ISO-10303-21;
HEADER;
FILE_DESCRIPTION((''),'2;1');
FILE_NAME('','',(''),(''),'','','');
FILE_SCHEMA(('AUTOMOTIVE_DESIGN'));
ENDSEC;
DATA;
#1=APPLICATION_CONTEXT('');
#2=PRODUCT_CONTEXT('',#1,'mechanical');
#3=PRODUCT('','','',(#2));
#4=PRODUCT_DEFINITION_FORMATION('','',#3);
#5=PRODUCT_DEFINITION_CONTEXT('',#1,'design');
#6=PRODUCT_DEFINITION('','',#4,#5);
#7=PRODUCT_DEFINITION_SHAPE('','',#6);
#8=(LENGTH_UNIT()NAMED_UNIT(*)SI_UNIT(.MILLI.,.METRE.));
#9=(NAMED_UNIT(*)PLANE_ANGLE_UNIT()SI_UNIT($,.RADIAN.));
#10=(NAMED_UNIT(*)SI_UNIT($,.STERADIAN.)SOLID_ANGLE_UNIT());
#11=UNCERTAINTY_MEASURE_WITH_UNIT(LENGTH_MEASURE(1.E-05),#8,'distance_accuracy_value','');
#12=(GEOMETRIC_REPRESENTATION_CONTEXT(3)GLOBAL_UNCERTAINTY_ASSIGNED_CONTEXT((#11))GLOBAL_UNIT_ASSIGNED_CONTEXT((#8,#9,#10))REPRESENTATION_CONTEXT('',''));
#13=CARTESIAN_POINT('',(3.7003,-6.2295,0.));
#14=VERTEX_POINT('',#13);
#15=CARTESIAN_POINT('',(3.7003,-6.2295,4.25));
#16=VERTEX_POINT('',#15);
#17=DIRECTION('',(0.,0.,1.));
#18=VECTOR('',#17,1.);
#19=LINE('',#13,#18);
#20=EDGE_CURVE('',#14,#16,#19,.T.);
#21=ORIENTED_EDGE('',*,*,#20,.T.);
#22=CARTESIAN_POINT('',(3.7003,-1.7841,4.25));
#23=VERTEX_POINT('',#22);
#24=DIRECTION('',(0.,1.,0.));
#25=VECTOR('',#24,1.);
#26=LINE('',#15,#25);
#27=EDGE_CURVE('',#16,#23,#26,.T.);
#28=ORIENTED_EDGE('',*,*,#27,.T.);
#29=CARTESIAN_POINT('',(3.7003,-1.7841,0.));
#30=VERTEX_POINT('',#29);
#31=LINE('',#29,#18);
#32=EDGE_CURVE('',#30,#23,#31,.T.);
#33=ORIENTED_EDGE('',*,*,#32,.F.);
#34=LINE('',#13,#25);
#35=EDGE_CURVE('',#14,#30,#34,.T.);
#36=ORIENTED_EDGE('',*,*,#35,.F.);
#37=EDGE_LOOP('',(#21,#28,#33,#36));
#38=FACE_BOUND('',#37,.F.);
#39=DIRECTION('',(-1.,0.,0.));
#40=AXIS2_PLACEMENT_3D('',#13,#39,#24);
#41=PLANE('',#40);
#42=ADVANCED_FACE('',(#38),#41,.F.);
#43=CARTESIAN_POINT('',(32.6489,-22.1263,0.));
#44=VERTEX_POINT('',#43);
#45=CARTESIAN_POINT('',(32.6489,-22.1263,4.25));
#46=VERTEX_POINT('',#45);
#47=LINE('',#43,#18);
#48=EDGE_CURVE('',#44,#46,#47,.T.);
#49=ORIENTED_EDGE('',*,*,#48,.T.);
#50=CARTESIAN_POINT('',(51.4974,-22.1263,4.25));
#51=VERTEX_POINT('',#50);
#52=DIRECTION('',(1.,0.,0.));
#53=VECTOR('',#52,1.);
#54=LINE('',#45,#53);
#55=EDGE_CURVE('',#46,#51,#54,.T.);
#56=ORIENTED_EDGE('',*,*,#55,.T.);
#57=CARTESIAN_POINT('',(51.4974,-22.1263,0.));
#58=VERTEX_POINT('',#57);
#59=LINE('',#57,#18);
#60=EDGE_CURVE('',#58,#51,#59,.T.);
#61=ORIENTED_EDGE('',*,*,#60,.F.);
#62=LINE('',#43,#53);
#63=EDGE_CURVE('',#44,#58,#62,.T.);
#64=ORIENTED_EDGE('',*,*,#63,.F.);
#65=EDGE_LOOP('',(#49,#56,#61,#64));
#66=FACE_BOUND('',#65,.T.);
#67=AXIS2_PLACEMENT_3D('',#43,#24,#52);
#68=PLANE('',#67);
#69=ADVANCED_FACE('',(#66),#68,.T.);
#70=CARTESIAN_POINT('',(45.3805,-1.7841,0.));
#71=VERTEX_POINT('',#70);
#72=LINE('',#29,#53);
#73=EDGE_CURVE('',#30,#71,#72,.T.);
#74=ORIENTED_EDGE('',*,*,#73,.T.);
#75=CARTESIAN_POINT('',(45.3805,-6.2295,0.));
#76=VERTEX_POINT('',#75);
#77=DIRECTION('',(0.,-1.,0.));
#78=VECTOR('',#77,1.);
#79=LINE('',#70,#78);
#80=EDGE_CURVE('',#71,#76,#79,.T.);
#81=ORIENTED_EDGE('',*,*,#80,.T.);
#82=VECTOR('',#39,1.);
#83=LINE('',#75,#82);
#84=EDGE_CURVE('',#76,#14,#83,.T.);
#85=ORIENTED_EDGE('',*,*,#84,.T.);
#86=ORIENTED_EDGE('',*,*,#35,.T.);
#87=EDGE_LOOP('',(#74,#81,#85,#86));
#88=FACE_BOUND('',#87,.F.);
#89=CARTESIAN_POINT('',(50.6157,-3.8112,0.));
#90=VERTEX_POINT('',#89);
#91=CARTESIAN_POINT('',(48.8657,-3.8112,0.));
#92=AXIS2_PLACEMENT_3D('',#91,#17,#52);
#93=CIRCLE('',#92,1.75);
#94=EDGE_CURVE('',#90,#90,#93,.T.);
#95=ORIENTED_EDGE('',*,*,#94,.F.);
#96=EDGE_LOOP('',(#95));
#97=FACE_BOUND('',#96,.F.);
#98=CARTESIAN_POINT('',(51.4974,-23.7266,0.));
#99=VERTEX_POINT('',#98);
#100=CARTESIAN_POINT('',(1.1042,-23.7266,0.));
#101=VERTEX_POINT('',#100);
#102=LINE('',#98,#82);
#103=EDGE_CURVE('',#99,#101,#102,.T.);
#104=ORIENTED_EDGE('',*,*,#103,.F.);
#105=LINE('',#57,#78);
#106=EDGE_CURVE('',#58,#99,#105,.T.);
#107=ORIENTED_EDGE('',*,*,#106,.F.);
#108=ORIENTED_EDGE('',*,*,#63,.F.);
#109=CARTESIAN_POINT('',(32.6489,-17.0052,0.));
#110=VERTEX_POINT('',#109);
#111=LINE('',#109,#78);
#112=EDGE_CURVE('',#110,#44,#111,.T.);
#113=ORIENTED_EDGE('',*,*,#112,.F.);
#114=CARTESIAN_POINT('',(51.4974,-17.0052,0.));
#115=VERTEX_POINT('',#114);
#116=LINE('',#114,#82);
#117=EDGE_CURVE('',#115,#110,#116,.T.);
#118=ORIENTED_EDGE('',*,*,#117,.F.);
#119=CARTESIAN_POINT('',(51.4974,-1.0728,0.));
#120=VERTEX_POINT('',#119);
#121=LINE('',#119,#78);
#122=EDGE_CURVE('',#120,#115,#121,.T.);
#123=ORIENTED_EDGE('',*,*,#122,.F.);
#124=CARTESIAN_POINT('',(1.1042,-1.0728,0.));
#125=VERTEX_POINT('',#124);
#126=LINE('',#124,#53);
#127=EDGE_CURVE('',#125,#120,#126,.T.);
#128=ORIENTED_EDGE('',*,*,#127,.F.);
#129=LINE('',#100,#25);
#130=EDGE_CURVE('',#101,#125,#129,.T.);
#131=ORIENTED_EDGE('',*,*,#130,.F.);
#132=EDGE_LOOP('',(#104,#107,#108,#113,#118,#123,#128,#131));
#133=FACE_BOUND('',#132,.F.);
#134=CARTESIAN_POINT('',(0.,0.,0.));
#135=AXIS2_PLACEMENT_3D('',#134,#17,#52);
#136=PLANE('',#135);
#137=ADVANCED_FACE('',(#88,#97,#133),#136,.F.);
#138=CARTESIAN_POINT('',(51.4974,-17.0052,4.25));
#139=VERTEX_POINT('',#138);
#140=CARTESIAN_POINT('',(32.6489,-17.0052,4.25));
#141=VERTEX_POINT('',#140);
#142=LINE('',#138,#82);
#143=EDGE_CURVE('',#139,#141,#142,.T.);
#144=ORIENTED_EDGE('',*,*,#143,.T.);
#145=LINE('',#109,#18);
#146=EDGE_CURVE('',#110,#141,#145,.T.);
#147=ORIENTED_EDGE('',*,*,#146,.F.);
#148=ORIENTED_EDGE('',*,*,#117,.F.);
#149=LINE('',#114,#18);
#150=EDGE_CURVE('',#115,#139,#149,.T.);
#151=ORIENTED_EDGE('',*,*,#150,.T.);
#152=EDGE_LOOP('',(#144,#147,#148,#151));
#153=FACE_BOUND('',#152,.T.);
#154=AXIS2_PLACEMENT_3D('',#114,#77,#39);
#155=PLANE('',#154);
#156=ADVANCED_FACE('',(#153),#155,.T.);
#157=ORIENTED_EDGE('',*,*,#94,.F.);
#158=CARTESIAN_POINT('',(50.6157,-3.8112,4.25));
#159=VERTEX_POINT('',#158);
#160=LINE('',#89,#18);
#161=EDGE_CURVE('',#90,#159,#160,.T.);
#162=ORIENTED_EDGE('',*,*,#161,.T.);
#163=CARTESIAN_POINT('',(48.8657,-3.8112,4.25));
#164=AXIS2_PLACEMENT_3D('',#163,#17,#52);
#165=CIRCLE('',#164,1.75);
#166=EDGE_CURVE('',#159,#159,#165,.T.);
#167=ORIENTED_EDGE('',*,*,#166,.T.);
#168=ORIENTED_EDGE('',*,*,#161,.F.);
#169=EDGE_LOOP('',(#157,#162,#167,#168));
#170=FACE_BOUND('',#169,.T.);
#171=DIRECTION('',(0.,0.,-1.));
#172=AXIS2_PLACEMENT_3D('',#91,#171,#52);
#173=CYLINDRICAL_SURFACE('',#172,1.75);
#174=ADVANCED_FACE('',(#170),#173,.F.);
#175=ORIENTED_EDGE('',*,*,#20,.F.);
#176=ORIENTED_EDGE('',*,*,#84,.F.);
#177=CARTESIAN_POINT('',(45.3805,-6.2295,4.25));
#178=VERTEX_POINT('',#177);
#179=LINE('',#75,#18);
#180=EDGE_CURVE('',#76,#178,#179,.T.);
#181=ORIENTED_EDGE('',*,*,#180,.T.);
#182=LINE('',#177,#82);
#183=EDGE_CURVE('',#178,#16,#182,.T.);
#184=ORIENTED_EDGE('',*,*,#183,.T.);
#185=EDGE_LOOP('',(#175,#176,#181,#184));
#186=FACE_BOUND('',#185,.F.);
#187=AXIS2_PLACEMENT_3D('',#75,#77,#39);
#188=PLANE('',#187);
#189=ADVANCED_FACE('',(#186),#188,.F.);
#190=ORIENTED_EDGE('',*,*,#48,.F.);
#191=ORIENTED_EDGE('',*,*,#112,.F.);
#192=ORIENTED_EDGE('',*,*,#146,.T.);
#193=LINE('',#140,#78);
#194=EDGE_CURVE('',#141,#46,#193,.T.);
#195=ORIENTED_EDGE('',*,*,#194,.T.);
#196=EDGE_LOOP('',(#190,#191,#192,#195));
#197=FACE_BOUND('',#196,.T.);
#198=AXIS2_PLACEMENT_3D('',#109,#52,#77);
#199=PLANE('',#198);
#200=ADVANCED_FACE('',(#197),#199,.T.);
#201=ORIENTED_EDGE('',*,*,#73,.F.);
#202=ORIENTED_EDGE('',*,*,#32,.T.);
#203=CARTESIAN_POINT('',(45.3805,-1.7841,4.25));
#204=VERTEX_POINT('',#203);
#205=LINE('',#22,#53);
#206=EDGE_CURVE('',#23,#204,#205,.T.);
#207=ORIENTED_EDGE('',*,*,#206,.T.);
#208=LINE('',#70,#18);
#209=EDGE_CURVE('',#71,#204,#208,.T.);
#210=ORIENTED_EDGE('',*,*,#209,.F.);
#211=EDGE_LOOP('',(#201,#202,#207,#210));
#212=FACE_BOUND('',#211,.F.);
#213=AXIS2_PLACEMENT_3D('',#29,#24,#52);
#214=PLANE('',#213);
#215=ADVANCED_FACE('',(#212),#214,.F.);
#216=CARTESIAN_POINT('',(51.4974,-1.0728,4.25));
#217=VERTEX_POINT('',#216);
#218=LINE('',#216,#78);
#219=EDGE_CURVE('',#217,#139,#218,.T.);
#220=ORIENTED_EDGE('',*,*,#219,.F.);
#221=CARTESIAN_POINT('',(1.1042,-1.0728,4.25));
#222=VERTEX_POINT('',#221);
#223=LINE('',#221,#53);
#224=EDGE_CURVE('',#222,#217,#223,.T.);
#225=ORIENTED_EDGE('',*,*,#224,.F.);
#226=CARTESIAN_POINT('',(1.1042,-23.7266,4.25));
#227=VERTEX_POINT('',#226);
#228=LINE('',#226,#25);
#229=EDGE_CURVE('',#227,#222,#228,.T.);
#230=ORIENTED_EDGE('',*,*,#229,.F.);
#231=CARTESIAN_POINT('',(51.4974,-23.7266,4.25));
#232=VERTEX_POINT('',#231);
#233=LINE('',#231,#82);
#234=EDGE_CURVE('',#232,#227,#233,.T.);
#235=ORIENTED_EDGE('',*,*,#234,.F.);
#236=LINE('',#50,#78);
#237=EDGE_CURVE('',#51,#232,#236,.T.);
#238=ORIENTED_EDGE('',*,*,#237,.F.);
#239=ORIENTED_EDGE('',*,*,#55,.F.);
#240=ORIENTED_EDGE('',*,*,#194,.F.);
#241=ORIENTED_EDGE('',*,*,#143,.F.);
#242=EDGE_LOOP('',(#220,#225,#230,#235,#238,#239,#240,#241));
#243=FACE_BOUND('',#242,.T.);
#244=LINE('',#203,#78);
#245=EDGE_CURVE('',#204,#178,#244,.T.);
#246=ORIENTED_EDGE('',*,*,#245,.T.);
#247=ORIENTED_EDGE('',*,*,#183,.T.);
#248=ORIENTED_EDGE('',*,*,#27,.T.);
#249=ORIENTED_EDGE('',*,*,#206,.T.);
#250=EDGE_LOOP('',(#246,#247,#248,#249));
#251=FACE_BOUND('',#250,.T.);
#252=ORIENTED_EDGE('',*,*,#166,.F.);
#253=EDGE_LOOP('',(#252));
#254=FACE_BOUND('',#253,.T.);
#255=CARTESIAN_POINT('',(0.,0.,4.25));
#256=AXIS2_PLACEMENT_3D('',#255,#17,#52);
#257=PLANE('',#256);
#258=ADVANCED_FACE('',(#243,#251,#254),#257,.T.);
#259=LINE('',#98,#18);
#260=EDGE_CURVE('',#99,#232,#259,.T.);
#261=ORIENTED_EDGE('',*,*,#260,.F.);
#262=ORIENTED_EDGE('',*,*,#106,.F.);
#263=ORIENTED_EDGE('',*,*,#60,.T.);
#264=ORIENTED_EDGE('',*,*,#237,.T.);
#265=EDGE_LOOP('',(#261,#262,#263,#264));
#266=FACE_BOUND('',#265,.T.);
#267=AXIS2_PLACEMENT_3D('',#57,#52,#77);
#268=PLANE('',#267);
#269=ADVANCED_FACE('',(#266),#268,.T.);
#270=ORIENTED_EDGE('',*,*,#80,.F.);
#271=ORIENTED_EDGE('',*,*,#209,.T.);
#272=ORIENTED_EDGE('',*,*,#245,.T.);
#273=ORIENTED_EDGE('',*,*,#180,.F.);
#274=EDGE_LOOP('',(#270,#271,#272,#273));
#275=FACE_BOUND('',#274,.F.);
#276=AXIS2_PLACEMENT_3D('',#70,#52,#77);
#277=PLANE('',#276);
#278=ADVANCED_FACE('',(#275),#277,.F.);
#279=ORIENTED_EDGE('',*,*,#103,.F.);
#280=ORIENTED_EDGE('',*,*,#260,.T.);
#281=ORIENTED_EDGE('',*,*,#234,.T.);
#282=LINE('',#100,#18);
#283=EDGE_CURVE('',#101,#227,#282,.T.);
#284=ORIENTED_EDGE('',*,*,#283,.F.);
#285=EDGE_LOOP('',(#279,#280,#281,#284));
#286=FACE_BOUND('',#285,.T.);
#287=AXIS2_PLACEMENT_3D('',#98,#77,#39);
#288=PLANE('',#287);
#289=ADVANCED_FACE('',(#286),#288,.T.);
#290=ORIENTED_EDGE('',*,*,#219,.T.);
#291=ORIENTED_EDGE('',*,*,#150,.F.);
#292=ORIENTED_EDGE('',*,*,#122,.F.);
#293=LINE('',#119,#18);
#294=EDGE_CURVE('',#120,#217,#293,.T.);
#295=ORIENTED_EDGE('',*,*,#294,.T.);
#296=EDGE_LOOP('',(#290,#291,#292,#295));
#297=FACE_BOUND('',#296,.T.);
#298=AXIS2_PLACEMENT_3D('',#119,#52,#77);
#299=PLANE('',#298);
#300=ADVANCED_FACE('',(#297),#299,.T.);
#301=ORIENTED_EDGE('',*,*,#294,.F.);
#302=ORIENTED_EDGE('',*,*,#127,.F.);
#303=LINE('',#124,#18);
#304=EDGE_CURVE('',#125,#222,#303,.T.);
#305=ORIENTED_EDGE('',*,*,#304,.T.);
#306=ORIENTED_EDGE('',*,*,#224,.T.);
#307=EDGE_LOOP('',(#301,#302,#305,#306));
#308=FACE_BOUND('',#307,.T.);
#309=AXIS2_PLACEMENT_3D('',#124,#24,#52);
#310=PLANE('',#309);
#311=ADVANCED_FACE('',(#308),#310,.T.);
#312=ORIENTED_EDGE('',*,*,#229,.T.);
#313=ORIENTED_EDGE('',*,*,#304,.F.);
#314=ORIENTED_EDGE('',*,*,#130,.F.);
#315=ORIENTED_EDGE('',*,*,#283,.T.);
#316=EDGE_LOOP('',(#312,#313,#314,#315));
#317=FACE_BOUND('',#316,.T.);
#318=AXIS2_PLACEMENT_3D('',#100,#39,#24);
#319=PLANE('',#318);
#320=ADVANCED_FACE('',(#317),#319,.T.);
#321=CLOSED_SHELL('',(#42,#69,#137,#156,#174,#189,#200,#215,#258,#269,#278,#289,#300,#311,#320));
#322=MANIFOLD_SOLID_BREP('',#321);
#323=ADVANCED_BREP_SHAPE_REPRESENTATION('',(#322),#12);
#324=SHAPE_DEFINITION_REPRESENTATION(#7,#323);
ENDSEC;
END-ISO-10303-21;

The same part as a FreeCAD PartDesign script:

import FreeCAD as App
import Part
import Sketcher

V = App.Vector
Q = App.Units.Quantity

doc = App.newDocument("Part")
body = doc.addObject("PartDesign::Body", "Body")

# Sketch on XY plane
sketch1 = doc.addObject("Sketcher::SketchObject", "Sketch")
body.addObject(sketch1)
sketch1.AttachmentSupport = (doc.XY_Plane, [""])
sketch1.MapMode = "FlatFace"
sketch1.addGeometry([
    Part.LineSegment(V(51.5, -23.7, 0), V(51.5, -22.1, 0)),  # 0
    Part.LineSegment(V(51.5, -22.1, 0), V(32.6, -22.1, 0)),  # 1
    Part.LineSegment(V(32.6, -22.1, 0), V(32.6, -17, 0)),  # 2
    Part.LineSegment(V(32.6, -17, 0), V(51.5, -17, 0)),  # 3
    Part.LineSegment(V(51.5, -17, 0), V(51.5, -1.1, 0)),  # 4
    Part.LineSegment(V(51.5, -1.1, 0), V(1.1, -1.1, 0)),  # 5
    Part.LineSegment(V(1.1, -1.1, 0), V(1.1, -23.7, 0)),  # 6
    Part.LineSegment(V(1.1, -23.7, 0), V(51.5, -23.7, 0)),  # 7
    Part.LineSegment(V(3.7, -6.2, 0), V(3.7, -1.8, 0)),  # 8
    Part.LineSegment(V(3.7, -1.8, 0), V(45.4, -1.8, 0)),  # 9
    Part.LineSegment(V(45.4, -1.8, 0), V(45.4, -6.2, 0)),  # 10
    Part.LineSegment(V(45.4, -6.2, 0), V(3.7, -6.2, 0)),  # 11
    Part.Circle(V(48.9, -3.8, 0), V(0, 0, 1), 1.8),  # 12
], False)
sketch1.addConstraint([
    Sketcher.Constraint("Coincident", 0, 2, 1, 1),
    Sketcher.Constraint("Coincident", 1, 2, 2, 1),
    Sketcher.Constraint("Coincident", 2, 2, 3, 1),
    Sketcher.Constraint("Coincident", 3, 2, 4, 1),
    Sketcher.Constraint("Coincident", 4, 2, 5, 1),
    Sketcher.Constraint("Coincident", 5, 2, 6, 1),
    Sketcher.Constraint("Coincident", 6, 2, 7, 1),
    Sketcher.Constraint("Coincident", 7, 2, 0, 1),
    Sketcher.Constraint("Coincident", 8, 2, 9, 1),
    Sketcher.Constraint("Coincident", 9, 2, 10, 1),
    Sketcher.Constraint("Coincident", 10, 2, 11, 1),
    Sketcher.Constraint("Coincident", 11, 2, 8, 1),
    Sketcher.Constraint("Vertical", 0),
    Sketcher.Constraint("Horizontal", 1),
    Sketcher.Constraint("Vertical", 2),
    Sketcher.Constraint("Horizontal", 3),
    Sketcher.Constraint("Vertical", 4),
    Sketcher.Constraint("Horizontal", 5),
    Sketcher.Constraint("Vertical", 6),
    Sketcher.Constraint("Horizontal", 7),
    Sketcher.Constraint("Vertical", 8),
    Sketcher.Constraint("Horizontal", 9),
    Sketcher.Constraint("Vertical", 10),
    Sketcher.Constraint("Horizontal", 11),
    Sketcher.Constraint("Vertical", 0, 2, 3, 2),
    Sketcher.Constraint("Diameter", 12, Q("0.1378 in")),
    Sketcher.Constraint("DistanceY", 0, 1, 0, 2, Q("0.063 in")),
    Sketcher.Constraint("DistanceY", 8, 2, 5, 2, Q("0.028 in")),
    Sketcher.Constraint("DistanceX", 1, 2, 1, 1, Q("18.8485 mm")),
    Sketcher.Constraint("DistanceX", 5, 2, 5, 1, Q("50.3932 mm")),
    Sketcher.Constraint("DistanceX", 9, 1, 9, 2, Q("41.6802 mm")),
    Sketcher.Constraint("DistanceY", 2, 1, 2, 2, Q("5.121 mm")),
    Sketcher.Constraint("DistanceY", 4, 1, 4, 2, Q("15.9324 mm")),
    Sketcher.Constraint("DistanceY", 8, 1, 8, 2, Q("4.4454 mm")),
    Sketcher.Constraint("DistanceX", -1, 1, 1, 2, Q("1.2854 in")),
    Sketcher.Constraint("DistanceY", 2, 2, -1, 1, Q("0.6695 in")),
    Sketcher.Constraint("DistanceX", 12, 3, 0, 2, Q("0.1036 in")),
    Sketcher.Constraint("DistanceY", 12, 3, 4, 2, Q("0.1078 in")),
    Sketcher.Constraint("DistanceX", 5, 2, 8, 2, Q("0.1022 in")),
])
pad1 = doc.addObject("PartDesign::Pad", "Pad")
body.addObject(pad1)
pad1.Profile = sketch1
pad1.Length = 4.25

doc.recompute()
